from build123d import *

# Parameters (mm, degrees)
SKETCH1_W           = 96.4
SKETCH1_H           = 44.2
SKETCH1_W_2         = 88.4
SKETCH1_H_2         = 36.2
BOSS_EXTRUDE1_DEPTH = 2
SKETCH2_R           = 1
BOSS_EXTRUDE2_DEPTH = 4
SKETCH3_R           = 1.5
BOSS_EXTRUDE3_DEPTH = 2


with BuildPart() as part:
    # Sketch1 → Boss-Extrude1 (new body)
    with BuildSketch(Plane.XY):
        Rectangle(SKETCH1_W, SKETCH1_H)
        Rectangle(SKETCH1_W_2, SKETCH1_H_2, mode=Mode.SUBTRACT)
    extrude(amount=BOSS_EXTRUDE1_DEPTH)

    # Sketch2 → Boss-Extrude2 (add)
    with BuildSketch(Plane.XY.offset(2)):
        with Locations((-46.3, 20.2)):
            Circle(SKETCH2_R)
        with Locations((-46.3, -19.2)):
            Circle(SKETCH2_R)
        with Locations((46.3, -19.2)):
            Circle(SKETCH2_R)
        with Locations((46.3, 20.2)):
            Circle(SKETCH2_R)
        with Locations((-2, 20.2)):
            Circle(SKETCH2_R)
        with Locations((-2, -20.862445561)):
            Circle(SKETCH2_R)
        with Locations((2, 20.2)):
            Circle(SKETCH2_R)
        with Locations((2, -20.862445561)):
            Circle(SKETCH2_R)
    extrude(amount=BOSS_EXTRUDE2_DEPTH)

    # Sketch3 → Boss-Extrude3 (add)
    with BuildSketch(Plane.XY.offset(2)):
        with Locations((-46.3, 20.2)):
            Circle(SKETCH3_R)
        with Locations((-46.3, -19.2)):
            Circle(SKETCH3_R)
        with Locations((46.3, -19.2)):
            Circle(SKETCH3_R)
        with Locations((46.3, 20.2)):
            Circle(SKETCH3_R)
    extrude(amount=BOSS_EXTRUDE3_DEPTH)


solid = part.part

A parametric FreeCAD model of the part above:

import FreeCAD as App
import Part
import Sketcher

V = App.Vector
Q = App.Units.Quantity

doc = App.newDocument("Part")
params = doc.addObject("Spreadsheet::Sheet", "Params")
for row, (alias, value) in enumerate([
    ("sketch1_width", "96.4 mm"),
    ("sketch1_width2", "88.4 mm"),
    ("sketch1_height", "44.2 mm"),
    ("sketch1_height2", "36.2 mm"),
    ("pad1_length", "2 mm"),
    ("sketch2_diameter", "2 mm"),
    ("pad2_length", "4 mm"),
    ("sketch3_diameter", "3 mm"),
    ("pad3_length", "2 mm"),
], start=1):
    params.set(f"A{row}", alias)
    params.set(f"B{row}", "=" + value)
    params.setAlias(f"B{row}", alias)

body = doc.addObject("PartDesign::Body", "Body")

# Sketch on XY plane
sketch1 = body.newObject("Sketcher::SketchObject", "Sketch")
sketch1.AttachmentSupport = (doc.getObject("XY_Plane"), [""])
sketch1.MapMode = "FlatFace"
sketch1.addGeometry([
    Part.LineSegment(V(-48, 22, 0), V(-48, -22, 0)),  # 0
    Part.LineSegment(V(-48, -22, 0), V(48, -22, 0)),  # 1
    Part.LineSegment(V(48, -22, 0), V(48, 22, 0)),  # 2
    Part.LineSegment(V(48, 22, 0), V(-48, 22, 0)),  # 3
    Part.LineSegment(V(44, -18, 0), V(-44, -18, 0)),  # 4
    Part.LineSegment(V(-44, -18, 0), V(-44, 18, 0)),  # 5
    Part.LineSegment(V(-44, 18, 0), V(44, 18, 0)),  # 6
    Part.LineSegment(V(44, 18, 0), V(44, -18, 0)),  # 7
], False)
sketch1.addConstraint([
    Sketcher.Constraint("Coincident", 0, 2, 1, 1),
    Sketcher.Constraint("Coincident", 1, 2, 2, 1),
    Sketcher.Constraint("Coincident", 2, 2, 3, 1),
    Sketcher.Constraint("Coincident", 3, 2, 0, 1),
    Sketcher.Constraint("Coincident", 4, 2, 5, 1),
    Sketcher.Constraint("Coincident", 5, 2, 6, 1),
    Sketcher.Constraint("Coincident", 6, 2, 7, 1),
    Sketcher.Constraint("Coincident", 7, 2, 4, 1),
    Sketcher.Constraint("Vertical", 0),
    Sketcher.Constraint("Horizontal", 1),
    Sketcher.Constraint("Vertical", 2),
    Sketcher.Constraint("Horizontal", 3),
    Sketcher.Constraint("Horizontal", 4),
    Sketcher.Constraint("Vertical", 5),
    Sketcher.Constraint("Horizontal", 6),
    Sketcher.Constraint("Vertical", 7),
    Sketcher.Constraint("Symmetric", 0, 2, 2, 2, -1, 1),
    Sketcher.Constraint("Symmetric", 4, 2, 6, 2, -1, 1),
    Sketcher.Constraint("DistanceX", 1, 1, 1, 2, Q("96.4 mm")),
    Sketcher.Constraint("DistanceX", 4, 2, 4, 1, Q("88.4 mm")),
    Sketcher.Constraint("DistanceY", 0, 2, 0, 1, Q("44.2 mm")),
    Sketcher.Constraint("DistanceY", 5, 1, 5, 2, Q("36.2 mm")),
])
sketch1.setExpression("Constraints[18]", "Params.sketch1_width")
sketch1.setExpression("Constraints[19]", "Params.sketch1_width2")
sketch1.setExpression("Constraints[20]", "Params.sketch1_height")
sketch1.setExpression("Constraints[21]", "Params.sketch1_height2")
pad1 = body.newObject("PartDesign::Pad", "Pad")
pad1.Profile = sketch1
pad1.setExpression("Length", "Params.pad1_length")

# Sketch on XY plane
sketch2 = body.newObject("Sketcher::SketchObject", "Sketch001")
sketch2.AttachmentSupport = (doc.getObject("XY_Plane"), [""])
sketch2.MapMode = "FlatFace"
sketch2.AttachmentOffset = App.Placement(V(0, 0, 2), App.Rotation())
sketch2.addGeometry([
    Part.Circle(V(-46.3, 20.2, 0), V(0, 0, 1), 1),  # 0
    Part.Circle(V(-46.3, -19.2, 0), V(0, 0, 1), 1),  # 1
    Part.Circle(V(46.3, -19.2, 0), V(0, 0, 1), 1),  # 2
    Part.Circle(V(46.3, 20.2, 0), V(0, 0, 1), 1),  # 3
    Part.Circle(V(-2, 20.2, 0), V(0, 0, 1), 1),  # 4
    Part.Circle(V(-2, -20.9, 0), V(0, 0, 1), 1),  # 5
    Part.Circle(V(2, 20.2, 0), V(0, 0, 1), 1),  # 6
    Part.Circle(V(2, -20.9, 0), V(0, 0, 1), 1),  # 7
], False)
sketch2.addConstraint([
    Sketcher.Constraint("Equal", 0, 1),
    Sketcher.Constraint("Equal", 1, 2),
    Sketcher.Constraint("Equal", 2, 3),
    Sketcher.Constraint("Equal", 3, 4),
    Sketcher.Constraint("Equal", 4, 5),
    Sketcher.Constraint("Equal", 5, 6),
    Sketcher.Constraint("Equal", 6, 7),
    Sketcher.Constraint("Symmetric", 1, 3, 2, 3, -2),
    Sketcher.Constraint("Symmetric", 0, 3, 3, 3, -2),
    Sketcher.Constraint("Symmetric", 4, 3, 6, 3, -2),
    Sketcher.Constraint("Symmetric", 5, 3, 7, 3, -2),
    Sketcher.Constraint("Horizontal", 3, 3, 4, 3),
    Sketcher.Constraint("Vertical", 0, 3, 1, 3),
    Sketcher.Constraint("Vertical", 4, 3, 5, 3),
    Sketcher.Constraint("Diameter", 0, Q("2 mm")),
    Sketcher.Constraint("DistanceX", 4, 3, -1, 1, Q("2 mm")),
    Sketcher.Constraint("DistanceX", 0, 3, -1, 1, Q("46.3 mm")),
    Sketcher.Constraint("DistanceY", -1, 1, 0, 3, Q("20.2 mm")),
    Sketcher.Constraint("DistanceY", 1, 3, -1, 1, Q("19.2 mm")),
    Sketcher.Constraint("DistanceY", 5, 3, -1, 1, Q("20.862446 mm")),
])
sketch2.setExpression("Constraints[14]", "Params.sketch2_diameter")
pad2 = body.newObject("PartDesign::Pad", "Pad001")
pad2.Profile = sketch2
pad2.setExpression("Length", "Params.pad2_length")

# Sketch on XY plane
sketch3 = body.newObject("Sketcher::SketchObject", "Sketch002")
sketch3.AttachmentSupport = (doc.getObject("XY_Plane"), [""])
sketch3.MapMode = "FlatFace"
sketch3.AttachmentOffset = App.Placement(V(0, 0, 2), App.Rotation())
sketch3.addGeometry([
    Part.Circle(V(-46.3, 20.2, 0), V(0, 0, 1), 1.5),
    Part.Circle(V(-46.3, -19.2, 0), V(0, 0, 1), 1.5),
    Part.Circle(V(46.3, -19.2, 0), V(0, 0, 1), 1.5),
    Part.Circle(V(46.3, 20.2, 0), V(0, 0, 1), 1.5),
], False)
sketch3.addConstraint([
    Sketcher.Constraint("Equal", 0, 1),
    Sketcher.Constraint("Equal", 1, 2),
    Sketcher.Constraint("Equal", 2, 3),
    Sketcher.Constraint("Symmetric", 1, 3, 2, 3, -2),
    Sketcher.Constraint("Symmetric", 0, 3, 3, 3, -2),
    Sketcher.Constraint("Vertical", 0, 3, 1, 3),
    Sketcher.Constraint("Diameter", 0, Q("3 mm")),
    Sketcher.Constraint("DistanceX", 0, 3, -1, 1, Q("46.3 mm")),
    Sketcher.Constraint("DistanceY", -1, 1, 0, 3, Q("20.2 mm")),
    Sketcher.Constraint("DistanceY", 1, 3, -1, 1, Q("19.2 mm")),
])
sketch3.setExpression("Constraints[6]", "Params.sketch3_diameter")
pad3 = body.newObject("PartDesign::Pad", "Pad002")
pad3.Profile = sketch3
pad3.setExpression("Length", "Params.pad3_length")

doc.recompute()
